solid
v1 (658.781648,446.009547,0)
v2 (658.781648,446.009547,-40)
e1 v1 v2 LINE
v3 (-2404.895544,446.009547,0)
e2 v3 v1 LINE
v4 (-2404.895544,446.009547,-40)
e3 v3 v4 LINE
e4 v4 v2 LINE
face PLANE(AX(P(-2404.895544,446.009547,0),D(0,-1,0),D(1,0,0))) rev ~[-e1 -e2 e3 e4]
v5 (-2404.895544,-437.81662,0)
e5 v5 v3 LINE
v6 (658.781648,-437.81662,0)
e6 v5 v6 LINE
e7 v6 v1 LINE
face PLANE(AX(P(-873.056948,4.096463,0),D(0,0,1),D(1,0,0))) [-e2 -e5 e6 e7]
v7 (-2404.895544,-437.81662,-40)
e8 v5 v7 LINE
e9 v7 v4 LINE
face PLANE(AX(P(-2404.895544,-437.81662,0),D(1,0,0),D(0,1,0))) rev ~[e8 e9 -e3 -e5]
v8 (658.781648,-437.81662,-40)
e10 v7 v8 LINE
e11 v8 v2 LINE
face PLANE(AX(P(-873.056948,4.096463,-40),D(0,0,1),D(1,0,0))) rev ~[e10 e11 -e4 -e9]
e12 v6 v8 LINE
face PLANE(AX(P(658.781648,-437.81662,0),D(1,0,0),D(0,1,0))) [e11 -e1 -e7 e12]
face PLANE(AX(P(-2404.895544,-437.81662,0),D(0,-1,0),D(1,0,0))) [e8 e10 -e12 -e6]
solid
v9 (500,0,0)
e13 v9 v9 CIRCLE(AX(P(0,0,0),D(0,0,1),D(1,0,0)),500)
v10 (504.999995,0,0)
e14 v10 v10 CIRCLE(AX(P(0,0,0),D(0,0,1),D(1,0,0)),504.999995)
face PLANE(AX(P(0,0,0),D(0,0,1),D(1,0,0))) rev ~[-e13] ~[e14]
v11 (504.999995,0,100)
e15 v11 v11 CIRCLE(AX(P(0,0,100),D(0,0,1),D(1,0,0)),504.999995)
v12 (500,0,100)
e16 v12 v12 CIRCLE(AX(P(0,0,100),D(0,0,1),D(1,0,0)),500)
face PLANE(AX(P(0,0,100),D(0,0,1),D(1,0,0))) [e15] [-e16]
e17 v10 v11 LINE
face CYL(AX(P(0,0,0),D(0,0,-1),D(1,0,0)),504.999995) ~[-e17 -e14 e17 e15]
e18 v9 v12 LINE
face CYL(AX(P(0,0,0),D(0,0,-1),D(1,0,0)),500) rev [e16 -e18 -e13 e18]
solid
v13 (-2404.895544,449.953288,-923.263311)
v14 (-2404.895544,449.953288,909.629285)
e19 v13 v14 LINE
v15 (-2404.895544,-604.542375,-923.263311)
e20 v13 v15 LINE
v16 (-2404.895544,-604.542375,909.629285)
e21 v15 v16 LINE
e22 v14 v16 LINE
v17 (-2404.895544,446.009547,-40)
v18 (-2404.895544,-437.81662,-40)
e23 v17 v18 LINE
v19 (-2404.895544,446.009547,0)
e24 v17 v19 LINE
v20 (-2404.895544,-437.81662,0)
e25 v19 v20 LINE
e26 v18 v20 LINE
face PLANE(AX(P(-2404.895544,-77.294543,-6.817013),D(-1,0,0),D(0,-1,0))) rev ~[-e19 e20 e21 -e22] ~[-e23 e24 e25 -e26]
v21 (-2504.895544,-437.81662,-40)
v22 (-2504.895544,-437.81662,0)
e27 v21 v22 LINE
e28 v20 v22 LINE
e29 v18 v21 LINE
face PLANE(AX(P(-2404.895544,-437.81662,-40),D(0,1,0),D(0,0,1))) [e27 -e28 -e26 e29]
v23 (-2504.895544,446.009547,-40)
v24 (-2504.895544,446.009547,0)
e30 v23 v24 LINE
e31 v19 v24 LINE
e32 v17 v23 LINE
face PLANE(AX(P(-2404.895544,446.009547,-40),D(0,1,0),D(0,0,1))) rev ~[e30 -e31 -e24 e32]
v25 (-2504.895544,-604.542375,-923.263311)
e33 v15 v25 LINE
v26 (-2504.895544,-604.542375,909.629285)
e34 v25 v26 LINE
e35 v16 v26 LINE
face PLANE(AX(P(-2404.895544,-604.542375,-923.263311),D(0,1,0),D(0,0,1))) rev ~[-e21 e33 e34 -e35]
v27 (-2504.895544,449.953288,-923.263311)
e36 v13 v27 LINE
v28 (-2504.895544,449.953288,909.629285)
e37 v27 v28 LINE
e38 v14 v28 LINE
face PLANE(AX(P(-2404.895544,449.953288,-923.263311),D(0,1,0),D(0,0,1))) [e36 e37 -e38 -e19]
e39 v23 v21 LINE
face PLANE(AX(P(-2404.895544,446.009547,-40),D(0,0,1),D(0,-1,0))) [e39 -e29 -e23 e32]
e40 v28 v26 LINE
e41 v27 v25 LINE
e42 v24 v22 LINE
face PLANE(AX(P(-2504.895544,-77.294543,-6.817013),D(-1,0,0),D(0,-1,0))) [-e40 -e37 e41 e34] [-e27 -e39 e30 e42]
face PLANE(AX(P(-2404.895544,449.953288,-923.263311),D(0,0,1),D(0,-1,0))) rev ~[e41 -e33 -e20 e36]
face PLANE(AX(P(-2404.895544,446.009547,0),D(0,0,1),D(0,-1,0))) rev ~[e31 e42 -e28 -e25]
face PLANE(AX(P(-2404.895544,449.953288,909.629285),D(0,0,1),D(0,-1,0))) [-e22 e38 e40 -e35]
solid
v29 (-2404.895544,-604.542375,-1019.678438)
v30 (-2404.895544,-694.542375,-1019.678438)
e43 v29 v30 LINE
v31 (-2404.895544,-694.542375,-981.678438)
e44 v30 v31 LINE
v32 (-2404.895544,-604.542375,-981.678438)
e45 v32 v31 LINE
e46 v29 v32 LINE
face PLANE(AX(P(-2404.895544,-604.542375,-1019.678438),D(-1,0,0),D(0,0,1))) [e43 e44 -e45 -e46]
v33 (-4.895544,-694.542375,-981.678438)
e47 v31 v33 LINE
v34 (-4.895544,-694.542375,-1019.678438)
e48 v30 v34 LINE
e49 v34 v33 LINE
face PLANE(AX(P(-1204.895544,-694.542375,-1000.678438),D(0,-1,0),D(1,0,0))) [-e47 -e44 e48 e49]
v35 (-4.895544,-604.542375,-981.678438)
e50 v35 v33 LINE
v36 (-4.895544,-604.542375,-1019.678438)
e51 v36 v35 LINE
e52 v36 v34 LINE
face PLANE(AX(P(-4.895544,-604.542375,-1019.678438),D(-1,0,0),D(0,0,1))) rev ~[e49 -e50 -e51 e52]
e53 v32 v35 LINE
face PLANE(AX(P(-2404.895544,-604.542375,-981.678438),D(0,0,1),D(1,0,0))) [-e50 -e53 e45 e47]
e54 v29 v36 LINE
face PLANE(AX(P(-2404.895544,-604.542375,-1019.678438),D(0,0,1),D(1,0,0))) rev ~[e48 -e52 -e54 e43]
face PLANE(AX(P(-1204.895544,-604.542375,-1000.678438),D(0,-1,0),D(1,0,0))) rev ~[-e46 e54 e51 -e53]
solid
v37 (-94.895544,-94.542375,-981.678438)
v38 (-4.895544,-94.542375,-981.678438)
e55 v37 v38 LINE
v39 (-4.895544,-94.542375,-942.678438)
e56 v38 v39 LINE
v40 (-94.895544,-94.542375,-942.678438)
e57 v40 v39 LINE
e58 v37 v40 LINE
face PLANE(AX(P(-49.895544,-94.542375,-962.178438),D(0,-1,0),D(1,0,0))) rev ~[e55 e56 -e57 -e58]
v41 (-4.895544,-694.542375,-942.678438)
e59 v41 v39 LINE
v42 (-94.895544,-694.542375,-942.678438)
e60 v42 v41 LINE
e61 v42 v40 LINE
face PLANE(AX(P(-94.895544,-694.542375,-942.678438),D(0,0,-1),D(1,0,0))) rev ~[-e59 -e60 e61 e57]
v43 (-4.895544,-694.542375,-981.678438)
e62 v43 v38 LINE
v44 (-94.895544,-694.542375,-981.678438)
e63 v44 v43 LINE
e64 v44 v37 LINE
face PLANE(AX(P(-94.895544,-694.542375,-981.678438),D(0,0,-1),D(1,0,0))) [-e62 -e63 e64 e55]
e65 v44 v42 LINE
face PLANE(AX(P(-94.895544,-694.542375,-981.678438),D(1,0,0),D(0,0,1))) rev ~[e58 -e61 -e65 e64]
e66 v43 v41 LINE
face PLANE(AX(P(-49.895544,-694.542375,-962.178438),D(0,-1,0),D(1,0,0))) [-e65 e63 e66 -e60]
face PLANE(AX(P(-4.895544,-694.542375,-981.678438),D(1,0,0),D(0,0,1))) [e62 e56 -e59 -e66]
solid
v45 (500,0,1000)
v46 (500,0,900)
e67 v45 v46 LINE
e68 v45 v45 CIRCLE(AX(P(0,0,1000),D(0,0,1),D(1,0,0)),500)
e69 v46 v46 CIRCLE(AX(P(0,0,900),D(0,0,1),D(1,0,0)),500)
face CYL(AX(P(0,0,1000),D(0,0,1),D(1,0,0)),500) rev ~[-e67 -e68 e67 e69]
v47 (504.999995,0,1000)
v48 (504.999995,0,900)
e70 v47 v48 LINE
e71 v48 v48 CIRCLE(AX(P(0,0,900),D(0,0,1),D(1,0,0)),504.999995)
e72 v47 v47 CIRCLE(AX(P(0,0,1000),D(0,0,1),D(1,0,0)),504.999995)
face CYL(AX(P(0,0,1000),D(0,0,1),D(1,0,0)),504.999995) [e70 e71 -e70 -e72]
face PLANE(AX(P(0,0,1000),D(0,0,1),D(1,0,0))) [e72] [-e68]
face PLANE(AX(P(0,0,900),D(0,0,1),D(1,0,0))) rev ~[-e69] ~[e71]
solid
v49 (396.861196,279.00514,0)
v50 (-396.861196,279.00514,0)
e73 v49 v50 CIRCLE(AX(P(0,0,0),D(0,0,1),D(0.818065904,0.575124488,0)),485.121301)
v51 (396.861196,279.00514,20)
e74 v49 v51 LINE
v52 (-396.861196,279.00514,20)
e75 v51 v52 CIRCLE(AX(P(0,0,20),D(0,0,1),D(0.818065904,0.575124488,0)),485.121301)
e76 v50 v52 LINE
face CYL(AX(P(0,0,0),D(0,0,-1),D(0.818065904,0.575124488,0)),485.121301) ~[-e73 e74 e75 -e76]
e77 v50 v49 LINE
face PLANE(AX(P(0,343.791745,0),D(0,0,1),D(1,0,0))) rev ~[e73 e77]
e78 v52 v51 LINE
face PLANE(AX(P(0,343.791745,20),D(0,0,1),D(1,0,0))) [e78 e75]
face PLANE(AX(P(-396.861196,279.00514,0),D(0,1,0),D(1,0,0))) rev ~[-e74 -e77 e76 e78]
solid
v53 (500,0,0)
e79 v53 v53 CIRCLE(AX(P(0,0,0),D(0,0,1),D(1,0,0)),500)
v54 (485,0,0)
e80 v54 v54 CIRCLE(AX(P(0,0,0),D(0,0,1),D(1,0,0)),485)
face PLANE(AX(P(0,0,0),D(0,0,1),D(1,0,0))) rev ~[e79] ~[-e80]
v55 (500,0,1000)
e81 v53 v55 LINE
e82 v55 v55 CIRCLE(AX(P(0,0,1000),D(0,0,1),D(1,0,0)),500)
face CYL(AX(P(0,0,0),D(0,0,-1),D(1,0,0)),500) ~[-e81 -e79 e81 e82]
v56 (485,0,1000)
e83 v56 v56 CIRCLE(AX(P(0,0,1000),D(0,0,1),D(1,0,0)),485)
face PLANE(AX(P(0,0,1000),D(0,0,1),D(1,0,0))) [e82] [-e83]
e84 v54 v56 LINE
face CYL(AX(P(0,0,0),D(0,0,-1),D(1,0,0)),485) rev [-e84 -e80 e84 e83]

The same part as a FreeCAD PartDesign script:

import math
import FreeCAD as App
import Part
import Sketcher

doc = App.newDocument("Part")
body = doc.addObject("PartDesign::Body", "Body")

# Sketch on XY plane
sketch1 = doc.addObject("Sketcher::SketchObject", "Sketch")
body.addObject(sketch1)
sketch1.AttachmentSupport = (doc.XY_Plane, [""])
sketch1.MapMode = "FlatFace"
sketch1.addGeometry(Part.Circle(App.Vector(0, 0, 0), App.Vector(0, 0, 1), 500), False)
sketch1.addGeometry(Part.Circle(App.Vector(0, 0, 0), App.Vector(0, 0, 1), 485), False)
sketch1.addConstraint(Sketcher.Constraint("Coincident", 0, 3, -1, 1))
sketch1.addConstraint(Sketcher.Constraint("Coincident", 1, 3, -1, 1))
sketch1.addConstraint(Sketcher.Constraint("Diameter", 0, 1000.0))
sketch1.addConstraint(Sketcher.Constraint("Diameter", 1, 970.0))
pad1 = doc.addObject("PartDesign::Pad", "Pad")
body.addObject(pad1)
pad1.Profile = sketch1
pad1.Length = 1000
body2 = doc.addObject("PartDesign::Body", "Body001")

# Sketch on XY plane
sketch2 = doc.addObject("Sketcher::SketchObject", "Sketch001")
body2.addObject(sketch2)
sketch2.AttachmentSupport = (doc.getObject("XY_Plane001"), [""])
sketch2.MapMode = "FlatFace"
sketch2.AttachmentOffset = App.Placement(App.Vector(0, 0, 1000), App.Rotation())
sketch2.addGeometry(Part.Circle(App.Vector(0, 0, 0), App.Vector(0, 0, 1), 505), False)
sketch2.addGeometry(Part.Circle(App.Vector(0, 0, 0), App.Vector(0, 0, 1), 500), False)
sketch2.addConstraint(Sketcher.Constraint("Coincident", 0, 3, -1, 1))
sketch2.addConstraint(Sketcher.Constraint("Coincident", 1, 3, -1, 1))
sketch2.addConstraint(Sketcher.Constraint("Diameter", 1, 1000.0))
sketch2.addConstraint(Sketcher.Constraint("Diameter", 0, 1009.99999))
pad2 = doc.addObject("PartDesign::Pad", "Pad001")
body2.addObject(pad2)
pad2.Profile = sketch2
pad2.Length = 100
pad2.Reversed = True
body3 = doc.addObject("PartDesign::Body", "Body002")

# Sketch on XY plane
sketch3 = doc.addObject("Sketcher::SketchObject", "Sketch002")
body3.addObject(sketch3)
sketch3.AttachmentSupport = (doc.getObject("XY_Plane002"), [""])
sketch3.MapMode = "FlatFace"
sketch3.addGeometry(Part.Circle(App.Vector(0, 0, 0), App.Vector(0, 0, 1), 505), False)
sketch3.addGeometry(Part.Circle(App.Vector(0, 0, 0), App.Vector(0, 0, 1), 500), False)
sketch3.addConstraint(Sketcher.Constraint("Coincident", 0, 3, -1, 1))
sketch3.addConstraint(Sketcher.Constraint("Coincident", 1, 3, -1, 1))
sketch3.addConstraint(Sketcher.Constraint("Diameter", 1, 1000.0))
sketch3.addConstraint(Sketcher.Constraint("Diameter", 0, 1009.99999))
pad3 = doc.addObject("PartDesign::Pad", "Pad002")
body3.addObject(pad3)
pad3.Profile = sketch3
pad3.Length = 100
body4 = doc.addObject("PartDesign::Body", "Body003")

# Sketch on XY plane
sketch4 = doc.addObject("Sketcher::SketchObject", "Sketch003")
body4.addObject(sketch4)
sketch4.AttachmentSupport = (doc.getObject("XY_Plane003"), [""])
sketch4.MapMode = "FlatFace"
sketch4.addGeometry(Part.ArcOfCircle(Part.Circle(App.Vector(0, 0, 0), App.Vector(0, 0, 1), 485), math.radians(35), math.radians(145)), False)
sketch4.addGeometry(Part.LineSegment(App.Vector(-397, 279, 0), App.Vector(397, 279, 0)), False)
sketch4.addConstraint(Sketcher.Constraint("Coincident", 0, 1, 1, 2))
sketch4.addConstraint(Sketcher.Constraint("Coincident", 1, 1, 0, 2))
sketch4.addConstraint(Sketcher.Constraint("Horizontal", 1))
sketch4.addConstraint(Sketcher.Constraint("Coincident", 0, 3, -1, 1))
sketch4.addConstraint(Sketcher.Constraint("Radius", 0, 485.121301))
sketch4.addConstraint(Sketcher.Constraint("DistanceX", 1, 1, 1, 2, 793.722391))
pad4 = doc.addObject("PartDesign::Pad", "Pad003")
body4.addObject(pad4)
pad4.Profile = sketch4
pad4.Length = 20
body5 = doc.addObject("PartDesign::Body", "Body004")

# Sketch on XY plane
sketch5 = doc.addObject("Sketcher::SketchObject", "Sketch004")
body5.addObject(sketch5)
sketch5.AttachmentSupport = (doc.getObject("XY_Plane004"), [""])
sketch5.MapMode = "FlatFace"
sketch5.addGeometry(Part.LineSegment(App.Vector(-2405, 446, 0), App.Vector(-2405, -438, 0)), False)
sketch5.addGeometry(Part.LineSegment(App.Vector(-2405, -438, 0), App.Vector(659, -438, 0)), False)
sketch5.addGeometry(Part.LineSegment(App.Vector(659, -438, 0), App.Vector(659, 446, 0)), False)
sketch5.addGeometry(Part.LineSegment(App.Vector(659, 446, 0), App.Vector(-2405, 446, 0)), False)
sketch5.addConstraint(Sketcher.Constraint("Coincident", 0, 2, 1, 1))
sketch5.addConstraint(Sketcher.Constraint("Coincident", 1, 2, 2, 1))
sketch5.addConstraint(Sketcher.Constraint("Coincident", 2, 2, 3, 1))
sketch5.addConstraint(Sketcher.Constraint("Coincident", 3, 2, 0, 1))
sketch5.addConstraint(Sketcher.Constraint("Vertical", 0))
sketch5.addConstraint(Sketcher.Constraint("Horizontal", 1))
sketch5.addConstraint(Sketcher.Constraint("Vertical", 2))
sketch5.addConstraint(Sketcher.Constraint("Horizontal", 3))
sketch5.addConstraint(Sketcher.Constraint("DistanceX", 1, 1, 1, 2, 3063.677192))
sketch5.addConstraint(Sketcher.Constraint("DistanceY", 0, 2, 0, 1, 883.826166))
sketch5.addConstraint(Sketcher.Constraint("DistanceY", 0, 2, -1, 1, 437.81662))
sketch5.addConstraint(Sketcher.Constraint("DistanceX", 0, 2, -1, 1, 2404.895544))
pad5 = doc.addObject("PartDesign::Pad", "Pad004")
body5.addObject(pad5)
pad5.Profile = sketch5
pad5.Length = 40
pad5.Reversed = True
body6 = doc.addObject("PartDesign::Body", "Body005")

# Sketch on YZ plane
sketch6 = doc.addObject("Sketcher::SketchObject", "Sketch005")
body6.addObject(sketch6)
sketch6.AttachmentSupport = (doc.getObject("YZ_Plane005"), [""])
sketch6.MapMode = "FlatFace"
sketch6.AttachmentOffset = App.Placement(App.Vector(0, 0, -2404.895544), App.Rotation())
sketch6.addGeometry(Part.LineSegment(App.Vector(450, 910, 0), App.Vector(450, -923, 0)), False)
sketch6.addGeometry(Part.LineSegment(App.Vector(450, -923, 0), App.Vector(-605, -923, 0)), False)
sketch6.addGeometry(Part.LineSegment(App.Vector(-605, -923, 0), App.Vector(-605, 910, 0)), False)
sketch6.addGeometry(Part.LineSegment(App.Vector(-605, 910, 0), App.Vector(450, 910, 0)), False)
sketch6.addGeometry(Part.LineSegment(App.Vector(-438, -40, 0), App.Vector(446, -40, 0)), False)
sketch6.addGeometry(Part.LineSegment(App.Vector(446, -40, 0), App.Vector(446, 0, 0)), False)
sketch6.addGeometry(Part.LineSegment(App.Vector(446, 0, 0), App.Vector(-438, 0, 0)), False)
sketch6.addGeometry(Part.LineSegment(App.Vector(-438, 0, 0), App.Vector(-438, -40, 0)), False)
sketch6.addConstraint(Sketcher.Constraint("Coincident", 0, 2, 1, 1))
sketch6.addConstraint(Sketcher.Constraint("Coincident", 1, 2, 2, 1))
sketch6.addConstraint(Sketcher.Constraint("Coincident", 2, 2, 3, 1))
sketch6.addConstraint(Sketcher.Constraint("Coincident", 3, 2, 0, 1))
sketch6.addConstraint(Sketcher.Constraint("Coincident", 4, 2, 5, 1))
sketch6.addConstraint(Sketcher.Constraint("Coincident", 5, 2, 6, 1))
sketch6.addConstraint(Sketcher.Constraint("Coincident", 6, 2, 7, 1))
sketch6.addConstraint(Sketcher.Constraint("Coincident", 7, 2, 4, 1))
sketch6.addConstraint(Sketcher.Constraint("Vertical", 0))
sketch6.addConstraint(Sketcher.Constraint("Horizontal", 1))
sketch6.addConstraint(Sketcher.Constraint("Vertical", 2))
sketch6.addConstraint(Sketcher.Constraint("Horizontal", 3))
sketch6.addConstraint(Sketcher.Constraint("Horizontal", 4))
sketch6.addConstraint(Sketcher.Constraint("Vertical", 5))
sketch6.addConstraint(Sketcher.Constraint("Horizontal", 6))
sketch6.addConstraint(Sketcher.Constraint("Vertical", 7))
sketch6.addConstraint(Sketcher.Constraint("PointOnObject", 5, 2, -1))
sketch6.addConstraint(Sketcher.Constraint("DistanceY", 5, 1, 5, 2, 40.0))
sketch6.addConstraint(Sketcher.Constraint("DistanceX", 1, 2, 1, 1, 1054.495662))
sketch6.addConstraint(Sketcher.Constraint("DistanceX", 4, 1, 4, 2, 883.826166))
sketch6.addConstraint(Sketcher.Constraint("DistanceY", 0, 2, 0, 1, 1832.892597))
sketch6.addConstraint(Sketcher.Constraint("DistanceY", 0, 2, -1, 1, 923.263311))
sketch6.addConstraint(Sketcher.Constraint("DistanceX", 6, 2, -1, 1, 437.81662))
sketch6.addConstraint(Sketcher.Constraint("DistanceX", 4, 2, 0, 2, 3.943741))
pad6 = doc.addObject("PartDesign::Pad", "Pad005")
body6.addObject(pad6)
pad6.Profile = sketch6
pad6.Length = 100
pad6.Reversed = True
body7 = doc.addObject("PartDesign::Body", "Body006")

# Sketch on XZ plane
sketch7 = doc.addObject("Sketcher::SketchObject", "Sketch006")
body7.addObject(sketch7)
sketch7.AttachmentSupport = (doc.getObject("XZ_Plane006"), [""])
sketch7.MapMode = "FlatFace"
sketch7.AttachmentOffset = App.Placement(App.Vector(0, 0, 604.542375), App.Rotation())
sketch7.addGeometry(Part.LineSegment(App.Vector(-2405, -982, 0), App.Vector(-2405, -1020, 0)), False)
sketch7.addGeometry(Part.LineSegment(App.Vector(-2405, -1020, 0), App.Vector(-5, -1020, 0)), False)
sketch7.addGeometry(Part.LineSegment(App.Vector(-5, -1020, 0), App.Vector(-5, -982, 0)), False)
sketch7.addGeometry(Part.LineSegment(App.Vector(-5, -982, 0), App.Vector(-2405, -982, 0)), False)
sketch7.addConstraint(Sketcher.Constraint("Coincident", 0, 2, 1, 1))
sketch7.addConstraint(Sketcher.Constraint("Coincident", 1, 2, 2, 1))
sketch7.addConstraint(Sketcher.Constraint("Coincident", 2, 2, 3, 1))
sketch7.addConstraint(Sketcher.Constraint("Coincident", 3, 2, 0, 1))
sketch7.addConstraint(Sketcher.Constraint("Vertical", 0))
sketch7.addConstraint(Sketcher.Constraint("Horizontal", 1))
sketch7.addConstraint(Sketcher.Constraint("Vertical", 2))
sketch7.addConstraint(Sketcher.Constraint("Horizontal", 3))
sketch7.addConstraint(Sketcher.Constraint("DistanceX", 1, 1, 1, 2, 2400.0))
sketch7.addConstraint(Sketcher.Constraint("DistanceY", 0, 2, 0, 1, 38.0))
sketch7.addConstraint(Sketcher.Constraint("DistanceX", 0, 2, -1, 1, 2404.895544))
sketch7.addConstraint(Sketcher.Constraint("DistanceY", 0, 2, -1, 1, 1019.678438))
pad7 = doc.addObject("PartDesign::Pad", "Pad006")
body7.addObject(pad7)
pad7.Profile = sketch7
pad7.Length = 90
body8 = doc.addObject("PartDesign::Body", "Body007")

# Sketch on XZ plane
sketch8 = doc.addObject("Sketcher::SketchObject", "Sketch007")
body8.addObject(sketch8)
sketch8.AttachmentSupport = (doc.getObject("XZ_Plane007"), [""])
sketch8.MapMode = "FlatFace"
sketch8.AttachmentOffset = App.Placement(App.Vector(0, 0, 694.542375), App.Rotation())
sketch8.addGeometry(Part.LineSegment(App.Vector(-95, -943, 0), App.Vector(-95, -982, 0)), False)
sketch8.addGeometry(Part.LineSegment(App.Vector(-95, -982, 0), App.Vector(-5, -982, 0)), False)
sketch8.addGeometry(Part.LineSegment(App.Vector(-5, -982, 0), App.Vector(-5, -943, 0)), False)
sketch8.addGeometry(Part.LineSegment(App.Vector(-5, -943, 0), App.Vector(-95, -943, 0)), False)
sketch8.addConstraint(Sketcher.Constraint("Coincident", 0, 2, 1, 1))
sketch8.addConstraint(Sketcher.Constraint("Coincident", 1, 2, 2, 1))
sketch8.addConstraint(Sketcher.Constraint("Coincident", 2, 2, 3, 1))
sketch8.addConstraint(Sketcher.Constraint("Coincident", 3, 2, 0, 1))
sketch8.addConstraint(Sketcher.Constraint("Vertical", 0))
sketch8.addConstraint(Sketcher.Constraint("Horizontal", 1))
sketch8.addConstraint(Sketcher.Constraint("Vertical", 2))
sketch8.addConstraint(Sketcher.Constraint("Horizontal", 3))
sketch8.addConstraint(Sketcher.Constraint("DistanceX", 1, 1, 1, 2, 90.0))
sketch8.addConstraint(Sketcher.Constraint("DistanceY", 0, 2, 0, 1, 39.0))
sketch8.addConstraint(Sketcher.Constraint("DistanceX", 0, 2, -1, 1, 94.895544))
sketch8.addConstraint(Sketcher.Constraint("DistanceY", 0, 2, -1, 1, 981.678438))
pad8 = doc.addObject("PartDesign::Pad", "Pad007")
body8.addObject(pad8)
pad8.Profile = sketch8
pad8.Length = 600
pad8.Reversed = True

doc.recompute()
